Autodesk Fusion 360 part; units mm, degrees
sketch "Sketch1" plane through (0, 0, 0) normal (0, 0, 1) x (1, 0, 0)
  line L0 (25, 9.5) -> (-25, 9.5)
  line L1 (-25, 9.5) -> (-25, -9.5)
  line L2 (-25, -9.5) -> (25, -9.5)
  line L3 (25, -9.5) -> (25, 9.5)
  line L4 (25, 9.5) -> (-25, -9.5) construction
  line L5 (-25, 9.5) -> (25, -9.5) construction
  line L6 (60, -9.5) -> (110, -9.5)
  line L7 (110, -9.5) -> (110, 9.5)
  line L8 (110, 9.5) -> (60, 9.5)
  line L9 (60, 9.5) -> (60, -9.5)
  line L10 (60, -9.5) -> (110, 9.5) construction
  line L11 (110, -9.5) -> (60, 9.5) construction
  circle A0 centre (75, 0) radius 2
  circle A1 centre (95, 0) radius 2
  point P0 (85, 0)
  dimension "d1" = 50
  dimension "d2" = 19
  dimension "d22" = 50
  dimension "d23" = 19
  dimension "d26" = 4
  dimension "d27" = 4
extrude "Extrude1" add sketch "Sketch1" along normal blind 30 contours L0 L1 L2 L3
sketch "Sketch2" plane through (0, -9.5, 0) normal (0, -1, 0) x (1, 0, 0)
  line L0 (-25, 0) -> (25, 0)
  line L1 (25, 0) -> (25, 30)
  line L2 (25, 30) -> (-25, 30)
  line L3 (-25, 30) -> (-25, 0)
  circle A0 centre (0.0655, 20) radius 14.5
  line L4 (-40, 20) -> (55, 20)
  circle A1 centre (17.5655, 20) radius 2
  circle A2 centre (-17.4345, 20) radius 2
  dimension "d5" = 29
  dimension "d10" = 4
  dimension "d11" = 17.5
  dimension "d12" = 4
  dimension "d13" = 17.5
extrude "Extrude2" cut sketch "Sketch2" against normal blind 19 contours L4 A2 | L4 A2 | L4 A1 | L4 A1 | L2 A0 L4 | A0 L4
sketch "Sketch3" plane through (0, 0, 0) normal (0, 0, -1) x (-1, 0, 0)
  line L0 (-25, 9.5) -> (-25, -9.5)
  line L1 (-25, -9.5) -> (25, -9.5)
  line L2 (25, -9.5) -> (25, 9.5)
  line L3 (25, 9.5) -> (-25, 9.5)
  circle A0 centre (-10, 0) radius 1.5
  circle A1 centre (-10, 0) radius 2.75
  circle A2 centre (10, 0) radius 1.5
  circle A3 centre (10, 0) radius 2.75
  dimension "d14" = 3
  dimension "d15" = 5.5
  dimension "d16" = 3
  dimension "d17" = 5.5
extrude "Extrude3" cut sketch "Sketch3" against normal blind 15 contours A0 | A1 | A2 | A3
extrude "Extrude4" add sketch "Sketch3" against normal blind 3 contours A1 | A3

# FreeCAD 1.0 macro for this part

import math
import FreeCAD as App
import Part
import Sketcher

V = App.Vector

doc = App.newDocument("Part")
body = doc.addObject("PartDesign::Body", "Body")

sketch1 = body.newObject("Sketcher::SketchObject", "Sketch")
sketch1.AttachmentSupport = (doc.getObject("XY_Plane"), [""])
sketch1.MapMode = "FlatFace"
sketch1.addGeometry(Part.LineSegment(V(25, -9.5, 0), V(25, 9.5, 0)), False)
sketch1.addGeometry(Part.LineSegment(V(25, 9.5, 0), V(-25, 9.5, 0)), False)
sketch1.addGeometry(Part.LineSegment(V(-25, 9.5, 0), V(-25, -9.5, 0)), False)
sketch1.addGeometry(Part.LineSegment(V(-25, -9.5, 0), V(25, -9.5, 0)), False)
sketch1.addConstraint(Sketcher.Constraint("Coincident", 0, 2, 1, 1))
sketch1.addConstraint(Sketcher.Constraint("Coincident", 1, 2, 2, 1))
sketch1.addConstraint(Sketcher.Constraint("Coincident", 2, 2, 3, 1))
sketch1.addConstraint(Sketcher.Constraint("Coincident", 3, 2, 0, 1))
sketch1.addConstraint(Sketcher.Constraint("Vertical", 0))
sketch1.addConstraint(Sketcher.Constraint("Horizontal", 1))
sketch1.addConstraint(Sketcher.Constraint("Vertical", 2))
sketch1.addConstraint(Sketcher.Constraint("Horizontal", 3))
sketch1.addConstraint(Sketcher.Constraint("Symmetric", 0, 2, 2, 2, -1, 1))
sketch1.addConstraint(Sketcher.Constraint("DistanceX", 1, 2, 1, 1, 50.0))
sketch1.addConstraint(Sketcher.Constraint("DistanceY", 0, 1, 0, 2, 19.0))
pad1 = body.newObject("PartDesign::Pad", "Pad")
pad1.Profile = sketch1
pad1.Length = 30

sketch2 = body.newObject("Sketcher::SketchObject", "Sketch001")
sketch2.AttachmentSupport = (doc.getObject("XZ_Plane"), [""])
sketch2.MapMode = "FlatFace"
sketch2.AttachmentOffset = App.Placement(V(0, 0, 9.5), App.Rotation())
sketch2.addGeometry(Part.Circle(V(-17.4345, 20, 0), V(0, 0, 1), 2), False)
sketch2.addGeometry(Part.Circle(V(17.5655, 20, 0), V(0, 0, 1), 2), False)
sketch2.addGeometry(Part.LineSegment(V(10.5655, 30, 0), V(-10.4345, 30, 0)), False)
sketch2.addGeometry(Part.ArcOfCircle(Part.Circle(V(0.0655, 20, 0), V(0, 0, 1), 14.5), math.radians(136.397181), math.radians(403.602819)), False)
sketch2.addConstraint(Sketcher.Constraint("Coincident", 2, 1, 3, 2))
sketch2.addConstraint(Sketcher.Constraint("Coincident", 3, 1, 2, 2))
sketch2.addConstraint(Sketcher.Constraint("Horizontal", 2))
sketch2.addConstraint(Sketcher.Constraint("Equal", 0, 1))
sketch2.addConstraint(Sketcher.Constraint("Horizontal", 0, 3, 1, 3))
sketch2.addConstraint(Sketcher.Constraint("Horizontal", 1, 3, 3, 3))
sketch2.addConstraint(Sketcher.Constraint("Diameter", 0, 4.0))
sketch2.addConstraint(Sketcher.Constraint("Radius", 3, 14.5))
sketch2.addConstraint(Sketcher.Constraint("DistanceX", 0, 3, 3, 3, 17.5))
sketch2.addConstraint(Sketcher.Constraint("DistanceX", 3, 3, 1, 3, 17.5))
sketch2.addConstraint(Sketcher.Constraint("DistanceX", 2, 2, 2, 1, 21.0))
sketch2.addConstraint(Sketcher.Constraint("DistanceY", -1, 1, 0, 3, 20.0))
sketch2.addConstraint(Sketcher.Constraint("DistanceX", 0, 3, -1, 1, 17.4345))
pocket1 = body.newObject("PartDesign::Pocket", "Pocket")
pocket1.Profile = sketch2
pocket1.Length = 19

sketch3 = body.newObject("Sketcher::SketchObject", "Sketch002")
sketch3.AttachmentSupport = (doc.getObject("XY_Plane"), [""])
sketch3.MapMode = "FlatFace"
sketch3.addGeometry(Part.Circle(V(10, 0, 0), V(0, 0, 1), 2.75), False)
sketch3.addGeometry(Part.Circle(V(-10, 0, 0), V(0, 0, 1), 2.75), False)
sketch3.addConstraint(Sketcher.Constraint("Equal", 0, 1))
sketch3.addConstraint(Sketcher.Constraint("Symmetric", 0, 3, 1, 3, -1, 1))
sketch3.addConstraint(Sketcher.Constraint("PointOnObject", 0, 3, -1))
sketch3.addConstraint(Sketcher.Constraint("Diameter", 0, 5.5))
sketch3.addConstraint(Sketcher.Constraint("DistanceX", -1, 1, 0, 3, 10.0))
pocket2 = body.newObject("PartDesign::Pocket", "Pocket001")
pocket2.Profile = sketch3
pocket2.Length = 15
pocket2.Reversed = True

sketch4 = body.newObject("Sketcher::SketchObject", "Sketch003")
sketch4.AttachmentSupport = (doc.getObject("XY_Plane"), [""])
sketch4.MapMode = "FlatFace"
sketch4.addGeometry(Part.Circle(V(10, 0, 0), V(0, 0, 1), 2.75), False)
sketch4.addGeometry(Part.Circle(V(10, 0, 0), V(0, 0, 1), 1.5), False)
sketch4.addGeometry(Part.Circle(V(-10, 0, 0), V(0, 0, 1), 2.75), False)
sketch4.addGeometry(Part.Circle(V(-10, 0, 0), V(0, 0, 1), 1.5), False)
sketch4.addConstraint(Sketcher.Constraint("Coincident", 1, 3, 0, 3))
sketch4.addConstraint(Sketcher.Constraint("Coincident", 3, 3, 2, 3))
sketch4.addConstraint(Sketcher.Constraint("Equal", 0, 2))
sketch4.addConstraint(Sketcher.Constraint("Equal", 1, 3))
sketch4.addConstraint(Sketcher.Constraint("Symmetric", 0, 3, 2, 3, -1, 1))
sketch4.addConstraint(Sketcher.Constraint("PointOnObject", 0, 3, -1))
sketch4.addConstraint(Sketcher.Constraint("Diameter", 1, 3.0))
sketch4.addConstraint(Sketcher.Constraint("Diameter", 0, 5.5))
sketch4.addConstraint(Sketcher.Constraint("DistanceX", -1, 1, 0, 3, 10.0))
pad2 = body.newObject("PartDesign::Pad", "Pad001")
pad2.Profile = sketch4
pad2.Length = 3

doc.recompute()
